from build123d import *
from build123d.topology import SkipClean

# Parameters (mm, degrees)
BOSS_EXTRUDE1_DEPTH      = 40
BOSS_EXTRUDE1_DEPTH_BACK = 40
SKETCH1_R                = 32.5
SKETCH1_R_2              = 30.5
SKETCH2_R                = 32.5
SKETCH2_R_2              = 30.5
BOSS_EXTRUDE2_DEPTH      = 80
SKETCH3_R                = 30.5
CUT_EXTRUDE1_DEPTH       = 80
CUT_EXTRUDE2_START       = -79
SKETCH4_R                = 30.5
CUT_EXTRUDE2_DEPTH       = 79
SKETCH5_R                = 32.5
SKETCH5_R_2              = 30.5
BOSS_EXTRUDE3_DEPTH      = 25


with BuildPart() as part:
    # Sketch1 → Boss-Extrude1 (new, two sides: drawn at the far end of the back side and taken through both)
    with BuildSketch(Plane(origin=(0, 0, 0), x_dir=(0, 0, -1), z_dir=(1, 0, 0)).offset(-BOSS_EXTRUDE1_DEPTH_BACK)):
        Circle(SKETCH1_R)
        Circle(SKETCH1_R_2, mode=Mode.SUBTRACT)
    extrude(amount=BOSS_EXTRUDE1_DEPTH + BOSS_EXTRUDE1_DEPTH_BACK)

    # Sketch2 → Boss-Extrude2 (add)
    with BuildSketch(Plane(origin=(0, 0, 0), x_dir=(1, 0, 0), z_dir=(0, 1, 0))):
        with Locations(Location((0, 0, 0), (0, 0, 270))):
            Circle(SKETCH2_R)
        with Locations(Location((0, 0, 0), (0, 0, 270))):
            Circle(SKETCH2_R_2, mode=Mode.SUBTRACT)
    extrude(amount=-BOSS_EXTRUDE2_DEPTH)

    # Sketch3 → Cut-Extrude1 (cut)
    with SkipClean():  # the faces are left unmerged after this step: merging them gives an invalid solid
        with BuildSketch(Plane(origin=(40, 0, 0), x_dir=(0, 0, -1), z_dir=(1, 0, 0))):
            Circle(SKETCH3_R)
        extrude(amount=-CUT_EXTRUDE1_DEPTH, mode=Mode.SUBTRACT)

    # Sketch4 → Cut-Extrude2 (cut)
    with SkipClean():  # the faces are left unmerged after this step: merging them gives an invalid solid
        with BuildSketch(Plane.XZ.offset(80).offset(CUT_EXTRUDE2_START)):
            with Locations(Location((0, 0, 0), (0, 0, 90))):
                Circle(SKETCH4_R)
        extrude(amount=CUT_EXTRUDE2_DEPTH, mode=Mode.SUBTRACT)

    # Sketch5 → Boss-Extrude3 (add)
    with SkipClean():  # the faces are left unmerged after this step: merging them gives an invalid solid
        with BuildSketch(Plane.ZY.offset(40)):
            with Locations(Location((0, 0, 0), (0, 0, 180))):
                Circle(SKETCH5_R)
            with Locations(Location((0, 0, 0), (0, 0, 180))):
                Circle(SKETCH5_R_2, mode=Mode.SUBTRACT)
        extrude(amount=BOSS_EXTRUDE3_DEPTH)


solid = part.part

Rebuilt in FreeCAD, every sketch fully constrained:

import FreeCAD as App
import Part
import Sketcher
from FreeCAD import Vector

doc = App.newDocument("Part")
body = doc.addObject("PartDesign::Body", "Body")

# Sketch on YZ plane
sketch1 = body.newObject("Sketcher::SketchObject", "Sketch")
sketch1.AttachmentSupport = (doc.getObject("YZ_Plane"), [""])
sketch1.MapMode = "FlatFace"
sketch1.addGeometry(Part.Circle(Vector(0, 0, 0), Vector(0, 0, 1), 32), False)
sketch1.addGeometry(Part.Circle(Vector(0, 0, 0), Vector(0, 0, 1), 30), False)
sketch1.addConstraint(Sketcher.Constraint("Coincident", 0, 3, -1, 1))
sketch1.addConstraint(Sketcher.Constraint("Coincident", 1, 3, -1, 1))
sketch1.addConstraint(Sketcher.Constraint("Diameter", 0, 65.0))
sketch1.addConstraint(Sketcher.Constraint("Diameter", 1, 61.0))
pad1 = body.newObject("PartDesign::Pad", "Pad")
pad1.Profile = sketch1
pad1.Type = "TwoLengths"
pad1.Length = 40
pad1.Length2 = 40

# Sketch on XZ plane
sketch2 = body.newObject("Sketcher::SketchObject", "Sketch001")
sketch2.AttachmentSupport = (doc.getObject("XZ_Plane"), [""])
sketch2.MapMode = "FlatFace"
sketch2.addGeometry(Part.Circle(Vector(0, 0, 0), Vector(0, 0, 1), 32), False)
sketch2.addGeometry(Part.Circle(Vector(0, 0, 0), Vector(0, 0, 1), 30), False)
sketch2.addConstraint(Sketcher.Constraint("Coincident", 0, 3, -1, 1))
sketch2.addConstraint(Sketcher.Constraint("Coincident", 1, 3, -1, 1))
sketch2.addConstraint(Sketcher.Constraint("Diameter", 0, 65.0))
sketch2.addConstraint(Sketcher.Constraint("Diameter", 1, 61.0))
pad2 = body.newObject("PartDesign::Pad", "Pad001")
pad2.Profile = sketch2
pad2.Length = 80

# Sketch on YZ plane
sketch3 = body.newObject("Sketcher::SketchObject", "Sketch002")
sketch3.AttachmentSupport = (doc.getObject("YZ_Plane"), [""])
sketch3.MapMode = "FlatFace"
sketch3.AttachmentOffset = App.Placement(Vector(0, 0, 40), App.Rotation())
sketch3.addGeometry(Part.Circle(Vector(0, 0, 0), Vector(0, 0, 1), 30), False)
sketch3.addConstraint(Sketcher.Constraint("Coincident", 0, 3, -1, 1))
sketch3.addConstraint(Sketcher.Constraint("Diameter", 0, 61.0))
pocket1 = body.newObject("PartDesign::Pocket", "Pocket")
pocket1.Profile = sketch3
pocket1.Length = 80

# Sketch on XZ plane
sketch4 = body.newObject("Sketcher::SketchObject", "Sketch003")
sketch4.AttachmentSupport = (doc.getObject("XZ_Plane"), [""])
sketch4.MapMode = "FlatFace"
sketch4.AttachmentOffset = App.Placement(Vector(0, 0, 1), App.Rotation())
sketch4.addGeometry(Part.Circle(Vector(0, 0, 0), Vector(0, 0, 1), 30), False)
sketch4.addConstraint(Sketcher.Constraint("Coincident", 0, 3, -1, 1))
sketch4.addConstraint(Sketcher.Constraint("Diameter", 0, 61.0))
pocket2 = body.newObject("PartDesign::Pocket", "Pocket001")
pocket2.Profile = sketch4
pocket2.Length = 79
pocket2.Reversed = True

# Sketch on YZ plane
sketch5 = body.newObject("Sketcher::SketchObject", "Sketch004")
sketch5.AttachmentSupport = (doc.getObject("YZ_Plane"), [""])
sketch5.MapMode = "FlatFace"
sketch5.AttachmentOffset = App.Placement(Vector(0, 0, -40), App.Rotation())
sketch5.addGeometry(Part.Circle(Vector(0, 0, 0), Vector(0, 0, 1), 32), False)
sketch5.addGeometry(Part.Circle(Vector(0, 0, 0), Vector(0, 0, 1), 30), False)
sketch5.addConstraint(Sketcher.Constraint("Coincident", 0, 3, -1, 1))
sketch5.addConstraint(Sketcher.Constraint("Coincident", 1, 3, -1, 1))
sketch5.addConstraint(Sketcher.Constraint("Diameter", 0, 65.0))
sketch5.addConstraint(Sketcher.Constraint("Diameter", 1, 61.0))
pad3 = body.newObject("PartDesign::Pad", "Pad002")
pad3.Profile = sketch5
pad3.Length = 25
pad3.Reversed = True

doc.recompute()
